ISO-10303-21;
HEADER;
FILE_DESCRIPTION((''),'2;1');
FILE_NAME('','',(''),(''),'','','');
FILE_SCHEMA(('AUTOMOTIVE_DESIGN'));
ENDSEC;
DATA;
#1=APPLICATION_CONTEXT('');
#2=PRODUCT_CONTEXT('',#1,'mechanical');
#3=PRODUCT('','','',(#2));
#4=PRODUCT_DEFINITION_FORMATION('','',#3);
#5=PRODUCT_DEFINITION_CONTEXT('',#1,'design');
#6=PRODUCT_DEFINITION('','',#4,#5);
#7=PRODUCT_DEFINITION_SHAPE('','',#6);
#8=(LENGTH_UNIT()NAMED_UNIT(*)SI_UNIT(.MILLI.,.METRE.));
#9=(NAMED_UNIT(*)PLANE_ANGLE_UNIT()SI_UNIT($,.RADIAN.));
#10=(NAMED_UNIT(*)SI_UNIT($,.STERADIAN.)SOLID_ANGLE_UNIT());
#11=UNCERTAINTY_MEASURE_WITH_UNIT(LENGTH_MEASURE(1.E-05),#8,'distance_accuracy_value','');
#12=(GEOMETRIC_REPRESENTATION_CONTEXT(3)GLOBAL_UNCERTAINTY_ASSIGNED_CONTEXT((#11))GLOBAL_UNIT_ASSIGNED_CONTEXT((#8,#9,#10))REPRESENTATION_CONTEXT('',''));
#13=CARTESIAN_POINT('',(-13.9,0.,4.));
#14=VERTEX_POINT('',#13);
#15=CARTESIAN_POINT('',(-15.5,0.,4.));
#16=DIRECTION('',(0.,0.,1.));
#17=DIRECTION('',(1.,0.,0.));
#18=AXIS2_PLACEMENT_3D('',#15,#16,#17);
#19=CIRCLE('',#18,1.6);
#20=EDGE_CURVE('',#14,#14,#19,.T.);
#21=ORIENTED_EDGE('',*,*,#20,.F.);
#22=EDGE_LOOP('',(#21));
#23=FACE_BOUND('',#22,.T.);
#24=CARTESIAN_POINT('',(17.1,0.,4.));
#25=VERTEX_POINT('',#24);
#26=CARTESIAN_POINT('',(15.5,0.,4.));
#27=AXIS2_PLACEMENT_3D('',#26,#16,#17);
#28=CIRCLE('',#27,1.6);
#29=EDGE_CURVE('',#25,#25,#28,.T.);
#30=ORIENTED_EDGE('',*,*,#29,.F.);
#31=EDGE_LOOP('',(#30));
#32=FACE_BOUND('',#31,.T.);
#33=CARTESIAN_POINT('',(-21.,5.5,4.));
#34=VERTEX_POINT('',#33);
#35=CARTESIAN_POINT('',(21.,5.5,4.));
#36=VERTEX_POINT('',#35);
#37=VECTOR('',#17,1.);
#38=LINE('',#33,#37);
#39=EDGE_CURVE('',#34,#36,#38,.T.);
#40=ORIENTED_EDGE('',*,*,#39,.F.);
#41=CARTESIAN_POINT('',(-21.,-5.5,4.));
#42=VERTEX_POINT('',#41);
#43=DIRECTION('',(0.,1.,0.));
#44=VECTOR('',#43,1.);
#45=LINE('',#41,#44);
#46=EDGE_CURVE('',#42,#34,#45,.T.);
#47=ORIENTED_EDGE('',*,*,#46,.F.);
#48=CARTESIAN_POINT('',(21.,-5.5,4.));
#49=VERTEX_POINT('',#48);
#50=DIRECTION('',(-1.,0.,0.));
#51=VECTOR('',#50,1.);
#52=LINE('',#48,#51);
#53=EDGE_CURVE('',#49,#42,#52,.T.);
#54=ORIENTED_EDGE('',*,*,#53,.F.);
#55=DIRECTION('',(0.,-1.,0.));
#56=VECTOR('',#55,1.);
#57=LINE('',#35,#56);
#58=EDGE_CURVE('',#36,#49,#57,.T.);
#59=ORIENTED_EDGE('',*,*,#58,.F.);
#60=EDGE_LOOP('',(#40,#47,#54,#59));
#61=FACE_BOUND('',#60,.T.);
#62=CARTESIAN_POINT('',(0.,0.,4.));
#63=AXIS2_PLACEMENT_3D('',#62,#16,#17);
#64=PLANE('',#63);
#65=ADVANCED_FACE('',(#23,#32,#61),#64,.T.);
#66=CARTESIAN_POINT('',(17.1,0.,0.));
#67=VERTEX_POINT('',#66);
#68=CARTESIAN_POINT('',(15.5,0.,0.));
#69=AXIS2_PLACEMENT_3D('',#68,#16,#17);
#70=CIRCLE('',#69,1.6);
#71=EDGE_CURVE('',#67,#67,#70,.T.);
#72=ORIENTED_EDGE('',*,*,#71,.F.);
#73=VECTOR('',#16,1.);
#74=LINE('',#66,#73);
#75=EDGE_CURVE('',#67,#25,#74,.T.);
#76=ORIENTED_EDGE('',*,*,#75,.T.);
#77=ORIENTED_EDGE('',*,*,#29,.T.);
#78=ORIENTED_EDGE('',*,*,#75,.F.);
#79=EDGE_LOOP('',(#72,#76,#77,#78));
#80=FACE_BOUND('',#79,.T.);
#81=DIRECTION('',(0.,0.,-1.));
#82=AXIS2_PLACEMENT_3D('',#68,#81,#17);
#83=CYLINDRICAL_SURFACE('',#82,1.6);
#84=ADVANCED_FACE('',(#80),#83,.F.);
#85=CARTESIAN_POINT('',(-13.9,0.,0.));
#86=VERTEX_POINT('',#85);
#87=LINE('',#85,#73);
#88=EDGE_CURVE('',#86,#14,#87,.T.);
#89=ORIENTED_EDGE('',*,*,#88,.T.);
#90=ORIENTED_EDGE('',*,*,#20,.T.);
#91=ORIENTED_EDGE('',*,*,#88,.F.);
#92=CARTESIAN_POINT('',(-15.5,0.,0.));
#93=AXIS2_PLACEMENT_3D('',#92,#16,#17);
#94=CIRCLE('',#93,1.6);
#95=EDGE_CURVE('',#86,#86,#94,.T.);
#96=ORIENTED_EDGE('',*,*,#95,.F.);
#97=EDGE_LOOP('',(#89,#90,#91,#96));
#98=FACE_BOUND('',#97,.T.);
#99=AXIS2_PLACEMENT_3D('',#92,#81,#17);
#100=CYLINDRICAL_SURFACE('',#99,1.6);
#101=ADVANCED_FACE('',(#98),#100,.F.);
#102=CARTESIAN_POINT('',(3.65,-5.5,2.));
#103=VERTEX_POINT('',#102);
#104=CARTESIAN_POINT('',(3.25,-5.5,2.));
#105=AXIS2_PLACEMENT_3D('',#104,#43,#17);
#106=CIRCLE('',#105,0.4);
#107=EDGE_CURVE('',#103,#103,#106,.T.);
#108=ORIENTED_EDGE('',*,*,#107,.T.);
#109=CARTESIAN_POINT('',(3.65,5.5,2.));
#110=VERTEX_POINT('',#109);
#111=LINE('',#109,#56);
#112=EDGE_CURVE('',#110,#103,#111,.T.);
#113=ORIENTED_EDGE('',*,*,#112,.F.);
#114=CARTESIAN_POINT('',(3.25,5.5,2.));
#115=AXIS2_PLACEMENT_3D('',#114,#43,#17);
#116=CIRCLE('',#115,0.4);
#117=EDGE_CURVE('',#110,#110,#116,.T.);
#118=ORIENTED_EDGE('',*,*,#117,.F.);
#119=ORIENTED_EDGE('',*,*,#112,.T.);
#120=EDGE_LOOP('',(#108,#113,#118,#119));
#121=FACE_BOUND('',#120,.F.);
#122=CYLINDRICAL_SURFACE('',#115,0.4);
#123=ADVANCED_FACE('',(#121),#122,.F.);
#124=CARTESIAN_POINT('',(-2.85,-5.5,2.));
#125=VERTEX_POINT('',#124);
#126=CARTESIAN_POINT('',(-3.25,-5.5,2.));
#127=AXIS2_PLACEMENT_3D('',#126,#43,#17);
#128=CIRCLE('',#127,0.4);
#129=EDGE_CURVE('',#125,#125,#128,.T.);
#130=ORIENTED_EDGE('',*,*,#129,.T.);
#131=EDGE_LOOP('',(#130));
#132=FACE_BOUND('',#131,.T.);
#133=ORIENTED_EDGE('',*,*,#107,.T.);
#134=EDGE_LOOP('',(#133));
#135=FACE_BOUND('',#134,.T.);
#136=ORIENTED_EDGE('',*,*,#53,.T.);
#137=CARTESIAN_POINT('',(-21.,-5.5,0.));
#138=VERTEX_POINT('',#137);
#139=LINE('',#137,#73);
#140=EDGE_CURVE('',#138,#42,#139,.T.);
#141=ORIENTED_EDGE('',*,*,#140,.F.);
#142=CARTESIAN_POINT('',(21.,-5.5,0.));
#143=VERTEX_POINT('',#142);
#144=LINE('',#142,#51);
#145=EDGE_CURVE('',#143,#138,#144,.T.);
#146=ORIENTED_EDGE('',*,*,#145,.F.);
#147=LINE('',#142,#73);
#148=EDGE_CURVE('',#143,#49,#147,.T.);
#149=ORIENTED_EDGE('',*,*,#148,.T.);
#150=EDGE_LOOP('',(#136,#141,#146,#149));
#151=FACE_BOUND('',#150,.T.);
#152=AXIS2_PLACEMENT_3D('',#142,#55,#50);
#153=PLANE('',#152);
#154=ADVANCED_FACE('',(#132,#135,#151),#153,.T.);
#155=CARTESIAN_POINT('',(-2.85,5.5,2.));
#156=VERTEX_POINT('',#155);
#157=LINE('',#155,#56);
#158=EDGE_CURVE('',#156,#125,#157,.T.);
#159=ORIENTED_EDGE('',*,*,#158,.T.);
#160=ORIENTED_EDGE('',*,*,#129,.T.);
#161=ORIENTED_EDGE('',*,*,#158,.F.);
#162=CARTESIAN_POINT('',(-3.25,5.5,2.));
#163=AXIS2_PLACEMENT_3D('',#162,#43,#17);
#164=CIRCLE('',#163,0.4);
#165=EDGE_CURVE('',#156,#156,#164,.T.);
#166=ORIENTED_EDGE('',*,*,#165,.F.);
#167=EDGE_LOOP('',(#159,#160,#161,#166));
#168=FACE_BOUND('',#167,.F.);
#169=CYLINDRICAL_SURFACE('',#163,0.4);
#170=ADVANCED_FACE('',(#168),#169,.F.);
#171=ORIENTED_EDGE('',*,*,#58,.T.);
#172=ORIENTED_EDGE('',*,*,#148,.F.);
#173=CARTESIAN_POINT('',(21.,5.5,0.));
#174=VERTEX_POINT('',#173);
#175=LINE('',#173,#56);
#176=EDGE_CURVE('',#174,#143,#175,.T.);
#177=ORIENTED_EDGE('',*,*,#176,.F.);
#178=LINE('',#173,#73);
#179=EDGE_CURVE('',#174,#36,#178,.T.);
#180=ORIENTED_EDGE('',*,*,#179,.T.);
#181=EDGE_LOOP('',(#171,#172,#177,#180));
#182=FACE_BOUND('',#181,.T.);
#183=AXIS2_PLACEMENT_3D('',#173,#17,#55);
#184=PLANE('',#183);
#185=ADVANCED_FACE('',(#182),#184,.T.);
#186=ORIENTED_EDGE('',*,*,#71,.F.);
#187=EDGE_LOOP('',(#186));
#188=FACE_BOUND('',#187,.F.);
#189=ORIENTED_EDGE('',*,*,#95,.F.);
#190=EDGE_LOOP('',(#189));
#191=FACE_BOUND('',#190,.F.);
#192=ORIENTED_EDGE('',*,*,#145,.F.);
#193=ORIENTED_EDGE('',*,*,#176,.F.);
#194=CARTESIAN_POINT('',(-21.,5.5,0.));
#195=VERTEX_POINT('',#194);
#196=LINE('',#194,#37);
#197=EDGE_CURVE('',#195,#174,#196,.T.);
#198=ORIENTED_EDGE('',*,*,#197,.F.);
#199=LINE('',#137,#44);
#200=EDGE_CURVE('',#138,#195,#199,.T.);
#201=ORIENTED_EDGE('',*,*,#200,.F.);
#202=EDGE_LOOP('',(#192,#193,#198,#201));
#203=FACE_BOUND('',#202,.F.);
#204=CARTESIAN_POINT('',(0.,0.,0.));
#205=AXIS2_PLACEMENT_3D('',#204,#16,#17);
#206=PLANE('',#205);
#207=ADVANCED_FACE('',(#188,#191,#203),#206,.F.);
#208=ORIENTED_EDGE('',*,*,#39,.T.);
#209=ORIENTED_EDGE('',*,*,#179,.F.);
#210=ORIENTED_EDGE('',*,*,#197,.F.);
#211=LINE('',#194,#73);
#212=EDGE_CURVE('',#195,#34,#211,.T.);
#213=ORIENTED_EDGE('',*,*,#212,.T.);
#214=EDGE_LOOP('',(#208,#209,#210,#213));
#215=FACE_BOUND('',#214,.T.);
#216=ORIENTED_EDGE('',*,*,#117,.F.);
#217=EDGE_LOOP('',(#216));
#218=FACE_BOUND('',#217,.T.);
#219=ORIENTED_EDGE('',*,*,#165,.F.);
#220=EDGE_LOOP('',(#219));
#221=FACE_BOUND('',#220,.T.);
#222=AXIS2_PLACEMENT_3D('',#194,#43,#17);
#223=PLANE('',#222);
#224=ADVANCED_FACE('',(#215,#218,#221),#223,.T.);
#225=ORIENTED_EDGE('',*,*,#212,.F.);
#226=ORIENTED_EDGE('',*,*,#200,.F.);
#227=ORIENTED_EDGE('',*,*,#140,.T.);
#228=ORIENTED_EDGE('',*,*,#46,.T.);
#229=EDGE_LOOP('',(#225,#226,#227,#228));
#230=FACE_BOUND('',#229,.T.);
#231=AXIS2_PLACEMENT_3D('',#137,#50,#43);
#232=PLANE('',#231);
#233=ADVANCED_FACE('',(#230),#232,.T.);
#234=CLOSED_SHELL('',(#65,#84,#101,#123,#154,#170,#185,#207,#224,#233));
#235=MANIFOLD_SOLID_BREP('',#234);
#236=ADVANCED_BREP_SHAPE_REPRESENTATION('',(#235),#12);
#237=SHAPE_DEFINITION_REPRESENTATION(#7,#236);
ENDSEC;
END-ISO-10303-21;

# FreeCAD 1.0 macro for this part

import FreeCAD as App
import Part
import Sketcher

V = App.Vector
Q = App.Units.Quantity

doc = App.newDocument("Part")
body = doc.addObject("PartDesign::Body", "Body")

# Sketch on XY plane
sketch1 = doc.addObject("Sketcher::SketchObject", "Sketch")
body.addObject(sketch1)
sketch1.AttachmentSupport = (doc.XY_Plane, [""])
sketch1.MapMode = "FlatFace"
sketch1.addGeometry(Part.LineSegment(V(21, 5.5, 0), V(-21, 5.5, 0)), False)
sketch1.addGeometry(Part.LineSegment(V(-21, 5.5, 0), V(-21, -5.5, 0)), False)
sketch1.addGeometry(Part.LineSegment(V(-21, -5.5, 0), V(21, -5.5, 0)), False)
sketch1.addGeometry(Part.LineSegment(V(21, -5.5, 0), V(21, 5.5, 0)), False)
sketch1.addGeometry(Part.Circle(V(-15.5, 0, 0), V(0, 0, 1), 1.6), False)
sketch1.addGeometry(Part.Circle(V(15.5, 0, 0), V(0, 0, 1), 1.6), False)
sketch1.addConstraint(Sketcher.Constraint("Coincident", 0, 2, 1, 1))
sketch1.addConstraint(Sketcher.Constraint("Coincident", 1, 2, 2, 1))
sketch1.addConstraint(Sketcher.Constraint("Coincident", 2, 2, 3, 1))
sketch1.addConstraint(Sketcher.Constraint("Coincident", 3, 2, 0, 1))
sketch1.addConstraint(Sketcher.Constraint("Horizontal", 0))
sketch1.addConstraint(Sketcher.Constraint("Vertical", 1))
sketch1.addConstraint(Sketcher.Constraint("Horizontal", 2))
sketch1.addConstraint(Sketcher.Constraint("Vertical", 3))
sketch1.addConstraint(Sketcher.Constraint("Equal", 4, 5))
sketch1.addConstraint(Sketcher.Constraint("Symmetric", 4, 3, 5, 3, -1, 1))
sketch1.addConstraint(Sketcher.Constraint("Symmetric", 0, 2, 2, 2, -1, 1))
sketch1.addConstraint(Sketcher.Constraint("PointOnObject", 4, 3, -1))
sketch1.addConstraint(Sketcher.Constraint("Diameter", 4, Q("3.2 mm")))
sketch1.addConstraint(Sketcher.Constraint("DistanceX", 4, 3, 5, 3, Q("31 mm")))
sketch1.addConstraint(Sketcher.Constraint("DistanceY", -1, 1, 0, 2, Q("5.5 mm")))
sketch1.addConstraint(Sketcher.Constraint("DistanceX", 0, 2, 4, 3, Q("5.5 mm")))
pad1 = doc.addObject("PartDesign::Pad", "Pad")
body.addObject(pad1)
pad1.Profile = sketch1
pad1.Length = 4

# Sketch on XZ plane
sketch2 = doc.addObject("Sketcher::SketchObject", "Sketch001")
body.addObject(sketch2)
sketch2.AttachmentSupport = (doc.XZ_Plane, [""])
sketch2.MapMode = "FlatFace"
sketch2.AttachmentOffset = App.Placement(V(0, 0, -5.5), App.Rotation())
sketch2.addGeometry(Part.Circle(V(3.25, 2, 0), V(0, 0, 1), 0.4), False)
sketch2.addGeometry(Part.Circle(V(-3.25, 2, 0), V(0, 0, 1), 0.4), False)
sketch2.addConstraint(Sketcher.Constraint("Equal", 0, 1))
sketch2.addConstraint(Sketcher.Constraint("Symmetric", 0, 3, 1, 3, -2))
sketch2.addConstraint(Sketcher.Constraint("Diameter", 0, Q("0.8 mm")))
sketch2.addConstraint(Sketcher.Constraint("DistanceX", 1, 3, 0, 3, Q("6.5 mm")))
sketch2.addConstraint(Sketcher.Constraint("DistanceY", -1, 1, 0, 3, Q("2 mm")))
pocket1 = doc.addObject("PartDesign::Pocket", "Pocket")
body.addObject(pocket1)
pocket1.Profile = sketch2
pocket1.Type = "ThroughAll"
pocket1.Reversed = True

doc.recompute()
